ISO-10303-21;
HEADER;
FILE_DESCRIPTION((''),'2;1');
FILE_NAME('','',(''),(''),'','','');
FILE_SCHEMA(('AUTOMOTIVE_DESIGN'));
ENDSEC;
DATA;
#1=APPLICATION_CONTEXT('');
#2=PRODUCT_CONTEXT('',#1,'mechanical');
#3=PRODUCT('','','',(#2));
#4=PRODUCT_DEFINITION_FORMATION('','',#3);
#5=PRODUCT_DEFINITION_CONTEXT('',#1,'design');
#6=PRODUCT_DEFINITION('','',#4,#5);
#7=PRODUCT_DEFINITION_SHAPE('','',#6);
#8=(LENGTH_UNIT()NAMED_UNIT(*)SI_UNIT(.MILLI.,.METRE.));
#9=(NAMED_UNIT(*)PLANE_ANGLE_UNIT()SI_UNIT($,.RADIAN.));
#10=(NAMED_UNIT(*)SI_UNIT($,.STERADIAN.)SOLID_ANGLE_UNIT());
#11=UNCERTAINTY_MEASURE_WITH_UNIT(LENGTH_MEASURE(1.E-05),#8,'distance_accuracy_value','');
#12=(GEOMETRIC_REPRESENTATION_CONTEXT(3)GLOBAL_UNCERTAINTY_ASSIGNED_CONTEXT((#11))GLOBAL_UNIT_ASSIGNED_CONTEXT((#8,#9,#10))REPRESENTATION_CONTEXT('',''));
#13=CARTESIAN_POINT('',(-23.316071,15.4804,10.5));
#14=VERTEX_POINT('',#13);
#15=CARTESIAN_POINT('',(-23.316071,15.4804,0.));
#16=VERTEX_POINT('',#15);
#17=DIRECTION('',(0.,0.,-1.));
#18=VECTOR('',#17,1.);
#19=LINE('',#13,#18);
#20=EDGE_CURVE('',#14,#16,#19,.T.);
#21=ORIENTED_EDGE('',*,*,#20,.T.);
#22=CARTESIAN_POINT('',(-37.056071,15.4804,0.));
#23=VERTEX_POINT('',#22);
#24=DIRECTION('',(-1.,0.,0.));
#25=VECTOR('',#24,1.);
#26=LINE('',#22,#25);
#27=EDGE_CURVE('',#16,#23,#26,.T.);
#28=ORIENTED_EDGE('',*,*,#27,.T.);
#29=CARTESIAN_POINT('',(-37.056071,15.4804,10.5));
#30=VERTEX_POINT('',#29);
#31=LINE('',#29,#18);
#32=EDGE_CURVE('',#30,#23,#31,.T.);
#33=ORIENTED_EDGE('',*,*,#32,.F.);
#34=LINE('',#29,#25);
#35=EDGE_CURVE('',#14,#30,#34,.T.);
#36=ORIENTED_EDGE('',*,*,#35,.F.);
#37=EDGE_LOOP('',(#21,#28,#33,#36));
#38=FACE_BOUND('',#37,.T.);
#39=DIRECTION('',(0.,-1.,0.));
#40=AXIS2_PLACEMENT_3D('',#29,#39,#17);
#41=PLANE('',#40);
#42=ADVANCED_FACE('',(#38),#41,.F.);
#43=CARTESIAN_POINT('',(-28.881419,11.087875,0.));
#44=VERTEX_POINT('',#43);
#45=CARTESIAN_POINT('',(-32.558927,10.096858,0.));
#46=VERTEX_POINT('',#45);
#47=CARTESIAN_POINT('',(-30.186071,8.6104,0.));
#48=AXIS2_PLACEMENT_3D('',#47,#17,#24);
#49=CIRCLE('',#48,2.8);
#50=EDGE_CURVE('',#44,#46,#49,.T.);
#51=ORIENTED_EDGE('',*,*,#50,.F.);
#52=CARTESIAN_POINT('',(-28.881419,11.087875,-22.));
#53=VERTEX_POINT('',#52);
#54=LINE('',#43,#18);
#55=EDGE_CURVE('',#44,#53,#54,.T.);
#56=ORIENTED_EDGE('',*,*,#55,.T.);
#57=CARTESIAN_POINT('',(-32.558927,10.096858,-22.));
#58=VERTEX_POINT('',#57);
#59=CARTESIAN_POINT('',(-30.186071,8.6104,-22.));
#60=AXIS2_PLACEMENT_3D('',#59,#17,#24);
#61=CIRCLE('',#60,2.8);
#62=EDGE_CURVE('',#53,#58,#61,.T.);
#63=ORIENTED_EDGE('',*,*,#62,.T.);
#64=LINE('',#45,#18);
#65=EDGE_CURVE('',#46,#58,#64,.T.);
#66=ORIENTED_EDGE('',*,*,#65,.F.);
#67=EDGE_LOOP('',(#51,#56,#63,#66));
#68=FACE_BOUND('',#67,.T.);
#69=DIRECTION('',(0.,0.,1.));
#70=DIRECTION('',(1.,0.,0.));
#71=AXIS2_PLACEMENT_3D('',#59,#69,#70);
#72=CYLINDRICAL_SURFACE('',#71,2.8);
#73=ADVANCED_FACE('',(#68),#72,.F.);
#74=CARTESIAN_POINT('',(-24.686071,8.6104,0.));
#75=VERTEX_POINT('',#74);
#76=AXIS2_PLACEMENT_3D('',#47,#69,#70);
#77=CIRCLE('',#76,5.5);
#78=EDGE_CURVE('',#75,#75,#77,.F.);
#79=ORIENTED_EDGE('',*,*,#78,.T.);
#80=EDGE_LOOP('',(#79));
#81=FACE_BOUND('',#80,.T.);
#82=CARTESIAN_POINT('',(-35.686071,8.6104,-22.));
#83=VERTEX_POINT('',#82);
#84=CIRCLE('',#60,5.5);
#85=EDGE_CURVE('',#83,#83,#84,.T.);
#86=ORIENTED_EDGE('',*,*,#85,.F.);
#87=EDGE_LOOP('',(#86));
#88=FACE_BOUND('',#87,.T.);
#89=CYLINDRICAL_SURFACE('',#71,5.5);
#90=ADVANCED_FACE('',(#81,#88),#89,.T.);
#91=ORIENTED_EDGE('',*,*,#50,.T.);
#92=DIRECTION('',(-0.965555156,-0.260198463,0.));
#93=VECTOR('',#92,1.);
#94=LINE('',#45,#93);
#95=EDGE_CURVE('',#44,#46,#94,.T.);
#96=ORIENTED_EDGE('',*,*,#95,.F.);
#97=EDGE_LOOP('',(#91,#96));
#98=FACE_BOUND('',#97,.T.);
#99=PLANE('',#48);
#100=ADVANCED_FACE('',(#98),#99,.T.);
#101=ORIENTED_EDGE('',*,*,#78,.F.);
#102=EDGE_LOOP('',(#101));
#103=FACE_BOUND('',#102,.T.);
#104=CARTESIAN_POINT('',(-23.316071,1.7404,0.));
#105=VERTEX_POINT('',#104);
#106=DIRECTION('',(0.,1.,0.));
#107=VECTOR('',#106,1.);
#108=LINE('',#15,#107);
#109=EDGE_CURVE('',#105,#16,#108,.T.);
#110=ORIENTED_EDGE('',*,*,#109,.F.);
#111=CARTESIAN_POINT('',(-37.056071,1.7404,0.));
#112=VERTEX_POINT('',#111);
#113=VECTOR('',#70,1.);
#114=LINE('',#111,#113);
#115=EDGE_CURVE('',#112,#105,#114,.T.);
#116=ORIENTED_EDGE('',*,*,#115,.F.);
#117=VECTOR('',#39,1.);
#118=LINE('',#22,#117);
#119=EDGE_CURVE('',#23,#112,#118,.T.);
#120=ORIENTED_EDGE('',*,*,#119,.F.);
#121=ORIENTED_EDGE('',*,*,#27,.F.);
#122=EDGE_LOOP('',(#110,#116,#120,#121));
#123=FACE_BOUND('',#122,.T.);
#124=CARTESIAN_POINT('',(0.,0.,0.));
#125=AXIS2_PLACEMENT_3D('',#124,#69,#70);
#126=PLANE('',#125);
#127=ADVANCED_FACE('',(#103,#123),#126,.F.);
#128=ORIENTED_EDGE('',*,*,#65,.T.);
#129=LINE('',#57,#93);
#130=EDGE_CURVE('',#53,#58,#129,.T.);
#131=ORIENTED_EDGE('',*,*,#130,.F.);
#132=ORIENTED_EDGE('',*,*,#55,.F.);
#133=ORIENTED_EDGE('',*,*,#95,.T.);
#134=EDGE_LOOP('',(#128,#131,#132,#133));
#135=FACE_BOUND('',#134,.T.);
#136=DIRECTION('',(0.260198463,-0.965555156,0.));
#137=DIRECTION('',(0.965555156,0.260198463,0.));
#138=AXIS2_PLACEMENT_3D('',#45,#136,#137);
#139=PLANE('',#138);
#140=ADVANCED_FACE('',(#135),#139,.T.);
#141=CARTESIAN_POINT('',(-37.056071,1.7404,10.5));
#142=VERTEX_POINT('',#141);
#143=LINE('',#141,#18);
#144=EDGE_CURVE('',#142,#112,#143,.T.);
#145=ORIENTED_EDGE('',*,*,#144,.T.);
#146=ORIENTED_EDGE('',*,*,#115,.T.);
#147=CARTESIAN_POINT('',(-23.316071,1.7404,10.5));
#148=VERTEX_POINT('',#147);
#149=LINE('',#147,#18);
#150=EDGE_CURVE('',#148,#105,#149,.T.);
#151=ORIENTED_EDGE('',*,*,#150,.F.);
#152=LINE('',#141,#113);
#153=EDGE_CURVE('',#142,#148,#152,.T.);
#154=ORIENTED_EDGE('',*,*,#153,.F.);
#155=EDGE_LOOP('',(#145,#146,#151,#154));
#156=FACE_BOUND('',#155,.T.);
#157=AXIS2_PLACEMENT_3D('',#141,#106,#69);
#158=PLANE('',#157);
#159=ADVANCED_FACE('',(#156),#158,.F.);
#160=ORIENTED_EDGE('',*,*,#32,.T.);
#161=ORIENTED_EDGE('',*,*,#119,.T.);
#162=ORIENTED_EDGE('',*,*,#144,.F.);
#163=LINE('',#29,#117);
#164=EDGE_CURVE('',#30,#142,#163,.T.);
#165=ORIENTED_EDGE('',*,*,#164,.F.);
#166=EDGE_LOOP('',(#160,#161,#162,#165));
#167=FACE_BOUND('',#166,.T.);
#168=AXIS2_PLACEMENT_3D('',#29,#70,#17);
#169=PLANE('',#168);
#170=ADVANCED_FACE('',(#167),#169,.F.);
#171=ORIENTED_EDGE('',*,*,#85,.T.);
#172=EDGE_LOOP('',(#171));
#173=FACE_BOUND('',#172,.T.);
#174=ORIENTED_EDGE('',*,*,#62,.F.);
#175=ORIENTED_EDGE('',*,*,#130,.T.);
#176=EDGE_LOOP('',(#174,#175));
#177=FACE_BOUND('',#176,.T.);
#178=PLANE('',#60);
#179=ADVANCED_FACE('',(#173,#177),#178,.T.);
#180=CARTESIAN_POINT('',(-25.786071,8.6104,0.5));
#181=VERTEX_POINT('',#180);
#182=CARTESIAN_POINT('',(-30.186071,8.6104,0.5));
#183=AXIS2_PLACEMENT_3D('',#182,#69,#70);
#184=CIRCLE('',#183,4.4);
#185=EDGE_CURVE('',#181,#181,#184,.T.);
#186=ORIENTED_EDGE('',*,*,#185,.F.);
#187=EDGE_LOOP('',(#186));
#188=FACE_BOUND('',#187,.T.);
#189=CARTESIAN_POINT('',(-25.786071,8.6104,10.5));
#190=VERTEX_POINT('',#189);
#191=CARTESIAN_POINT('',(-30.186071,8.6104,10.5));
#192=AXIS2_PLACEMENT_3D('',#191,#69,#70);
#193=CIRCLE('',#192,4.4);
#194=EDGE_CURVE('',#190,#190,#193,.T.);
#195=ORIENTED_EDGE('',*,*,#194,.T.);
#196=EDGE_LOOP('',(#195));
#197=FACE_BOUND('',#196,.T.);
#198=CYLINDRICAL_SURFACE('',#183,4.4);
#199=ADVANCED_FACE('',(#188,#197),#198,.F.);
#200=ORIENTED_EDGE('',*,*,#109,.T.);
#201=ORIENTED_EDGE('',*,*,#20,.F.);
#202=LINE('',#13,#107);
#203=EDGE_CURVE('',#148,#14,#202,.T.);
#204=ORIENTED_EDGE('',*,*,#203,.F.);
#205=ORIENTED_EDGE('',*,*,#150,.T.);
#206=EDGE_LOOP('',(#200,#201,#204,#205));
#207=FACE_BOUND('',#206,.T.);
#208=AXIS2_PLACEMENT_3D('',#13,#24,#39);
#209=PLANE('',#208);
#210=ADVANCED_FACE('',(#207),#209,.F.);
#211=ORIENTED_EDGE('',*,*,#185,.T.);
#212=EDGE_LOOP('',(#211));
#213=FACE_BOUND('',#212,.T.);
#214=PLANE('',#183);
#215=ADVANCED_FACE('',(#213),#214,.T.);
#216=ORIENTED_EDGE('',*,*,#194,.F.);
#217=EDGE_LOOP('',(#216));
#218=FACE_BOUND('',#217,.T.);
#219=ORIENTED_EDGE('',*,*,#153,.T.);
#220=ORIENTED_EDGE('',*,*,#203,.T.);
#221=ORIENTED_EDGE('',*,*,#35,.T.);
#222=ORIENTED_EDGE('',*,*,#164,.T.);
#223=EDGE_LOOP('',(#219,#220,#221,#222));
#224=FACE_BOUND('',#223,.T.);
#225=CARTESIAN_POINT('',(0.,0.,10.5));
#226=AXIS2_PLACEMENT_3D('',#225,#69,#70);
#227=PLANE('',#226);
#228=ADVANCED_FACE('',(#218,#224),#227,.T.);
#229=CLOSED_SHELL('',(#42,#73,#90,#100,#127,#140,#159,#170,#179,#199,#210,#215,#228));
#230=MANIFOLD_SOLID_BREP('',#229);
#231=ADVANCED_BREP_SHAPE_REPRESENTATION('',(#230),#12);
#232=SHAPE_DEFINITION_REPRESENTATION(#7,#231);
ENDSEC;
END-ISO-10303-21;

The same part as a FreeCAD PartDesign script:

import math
import FreeCAD as App
import Part
import Sketcher

doc = App.newDocument("Part")
body = doc.addObject("PartDesign::Body", "Body")

# Sketch on XY plane
sketch1 = body.newObject("Sketcher::SketchObject", "Sketch")
sketch1.AttachmentSupport = (doc.getObject("XY_Plane"), [""])
sketch1.MapMode = "FlatFace"
sketch1.addGeometry([
    Part.LineSegment(App.Vector(-37, 15, 0), App.Vector(-37, 2, 0)),
    Part.LineSegment(App.Vector(-37, 2, 0), App.Vector(-23, 2, 0)),
    Part.LineSegment(App.Vector(-23, 2, 0), App.Vector(-23, 15, 0)),
    Part.LineSegment(App.Vector(-23, 15, 0), App.Vector(-37, 15, 0)),
], False)
sketch1.addConstraint([
    Sketcher.Constraint("Coincident", 0, 2, 1, 1),
    Sketcher.Constraint("Coincident", 1, 2, 2, 1),
    Sketcher.Constraint("Coincident", 2, 2, 3, 1),
    Sketcher.Constraint("Coincident", 3, 2, 0, 1),
    Sketcher.Constraint("Vertical", 0),
    Sketcher.Constraint("Horizontal", 1),
    Sketcher.Constraint("Vertical", 2),
    Sketcher.Constraint("Horizontal", 3),
    Sketcher.Constraint("Equal", 3, 0),
    Sketcher.Constraint("DistanceX", 1, 1, 1, 2, 13.74),
    Sketcher.Constraint("DistanceY", -1, 1, 0, 2, 1.7404),
    Sketcher.Constraint("DistanceX", 0, 2, -1, 1, 37.056071),
])
pad1 = body.newObject("PartDesign::Pad", "Pad")
pad1.Profile = sketch1
pad1.Length = 10.5

# Sketch on XY plane
sketch2 = body.newObject("Sketcher::SketchObject", "Sketch001")
sketch2.AttachmentSupport = (doc.getObject("XY_Plane"), [""])
sketch2.MapMode = "FlatFace"
sketch2.AttachmentOffset = App.Placement(App.Vector(0, 0, 10.5), App.Rotation())
sketch2.addGeometry(Part.Circle(App.Vector(-30.2, 8.6, 0), App.Vector(0, 0, 1), 4.4), False)
sketch2.addConstraint([
    Sketcher.Constraint("Diameter", 0, 8.8),
    Sketcher.Constraint("DistanceY", -1, 1, 0, 3, 8.6104),
    Sketcher.Constraint("DistanceX", 0, 3, -1, 1, 30.186071),
])
pocket1 = body.newObject("PartDesign::Pocket", "Pocket")
pocket1.Profile = sketch2
pocket1.Length = 10

# Sketch on XY plane
sketch3 = body.newObject("Sketcher::SketchObject", "Sketch002")
sketch3.AttachmentSupport = (doc.getObject("XY_Plane"), [""])
sketch3.MapMode = "FlatFace"
sketch3.addGeometry(Part.Circle(App.Vector(-30, 9, 0), App.Vector(0, 0, 1), 6), False)
sketch3.addConstraint([
    Sketcher.Constraint("Diameter", 0, 11.0),
    Sketcher.Constraint("DistanceY", -1, 1, 0, 3, 8.6104),
    Sketcher.Constraint("DistanceX", 0, 3, -1, 1, 30.186071),
])
pad2 = body.newObject("PartDesign::Pad", "Pad001")
pad2.Profile = sketch3
pad2.Length = 22
pad2.Reversed = True

# Sketch on XY plane
sketch4 = body.newObject("Sketcher::SketchObject", "Sketch003")
sketch4.AttachmentSupport = (doc.getObject("XY_Plane"), [""])
sketch4.MapMode = "FlatFace"
sketch4.addGeometry(Part.Circle(App.Vector(-30.2, 8.6, 0), App.Vector(0, 0, 1), 2.8), False)
sketch4.addConstraint([
    Sketcher.Constraint("Diameter", 0, 5.6),
    Sketcher.Constraint("DistanceY", -1, 1, 0, 3, 8.6104),
    Sketcher.Constraint("DistanceX", 0, 3, -1, 1, 30.186071),
])
pocket2 = body.newObject("PartDesign::Pocket", "Pocket001")
pocket2.Profile = sketch4
pocket2.Length = 22

# Sketch on XY plane
sketch5 = body.newObject("Sketcher::SketchObject", "Sketch004")
sketch5.AttachmentSupport = (doc.getObject("XY_Plane"), [""])
sketch5.MapMode = "FlatFace"
sketch5.AttachmentOffset = App.Placement(App.Vector(0, 0, -22), App.Rotation())
sketch5.addGeometry([
    Part.LineSegment(App.Vector(-28.9, 11.1, 0), App.Vector(-32.6, 10.1, 0)),
    Part.ArcOfCircle(Part.Circle(App.Vector(-30.2, 8.7, 0), App.Vector(0, 0, 1), 2.7), math.radians(61), math.radians(149)),
], False)
sketch5.addConstraint([
    Sketcher.Constraint("Coincident", 0, 1, 1, 1),
    Sketcher.Constraint("Coincident", 1, 2, 0, 2),
    Sketcher.Constraint("Radius", 1, 2.75),
    Sketcher.Constraint("DistanceX", 1, 3, -1, 1, 30.203959),
    Sketcher.Constraint("DistanceY", -1, 1, 1, 3, 8.676778),
    Sketcher.Constraint("DistanceX", 0, 1, -1, 1, 28.881419),
    Sketcher.Constraint("DistanceY", 1, 3, 1, 2, 1.42008),
])
pad3 = body.newObject("PartDesign::Pad", "Pad002")
pad3.Profile = sketch5
pad3.Length = 22

doc.recompute()
